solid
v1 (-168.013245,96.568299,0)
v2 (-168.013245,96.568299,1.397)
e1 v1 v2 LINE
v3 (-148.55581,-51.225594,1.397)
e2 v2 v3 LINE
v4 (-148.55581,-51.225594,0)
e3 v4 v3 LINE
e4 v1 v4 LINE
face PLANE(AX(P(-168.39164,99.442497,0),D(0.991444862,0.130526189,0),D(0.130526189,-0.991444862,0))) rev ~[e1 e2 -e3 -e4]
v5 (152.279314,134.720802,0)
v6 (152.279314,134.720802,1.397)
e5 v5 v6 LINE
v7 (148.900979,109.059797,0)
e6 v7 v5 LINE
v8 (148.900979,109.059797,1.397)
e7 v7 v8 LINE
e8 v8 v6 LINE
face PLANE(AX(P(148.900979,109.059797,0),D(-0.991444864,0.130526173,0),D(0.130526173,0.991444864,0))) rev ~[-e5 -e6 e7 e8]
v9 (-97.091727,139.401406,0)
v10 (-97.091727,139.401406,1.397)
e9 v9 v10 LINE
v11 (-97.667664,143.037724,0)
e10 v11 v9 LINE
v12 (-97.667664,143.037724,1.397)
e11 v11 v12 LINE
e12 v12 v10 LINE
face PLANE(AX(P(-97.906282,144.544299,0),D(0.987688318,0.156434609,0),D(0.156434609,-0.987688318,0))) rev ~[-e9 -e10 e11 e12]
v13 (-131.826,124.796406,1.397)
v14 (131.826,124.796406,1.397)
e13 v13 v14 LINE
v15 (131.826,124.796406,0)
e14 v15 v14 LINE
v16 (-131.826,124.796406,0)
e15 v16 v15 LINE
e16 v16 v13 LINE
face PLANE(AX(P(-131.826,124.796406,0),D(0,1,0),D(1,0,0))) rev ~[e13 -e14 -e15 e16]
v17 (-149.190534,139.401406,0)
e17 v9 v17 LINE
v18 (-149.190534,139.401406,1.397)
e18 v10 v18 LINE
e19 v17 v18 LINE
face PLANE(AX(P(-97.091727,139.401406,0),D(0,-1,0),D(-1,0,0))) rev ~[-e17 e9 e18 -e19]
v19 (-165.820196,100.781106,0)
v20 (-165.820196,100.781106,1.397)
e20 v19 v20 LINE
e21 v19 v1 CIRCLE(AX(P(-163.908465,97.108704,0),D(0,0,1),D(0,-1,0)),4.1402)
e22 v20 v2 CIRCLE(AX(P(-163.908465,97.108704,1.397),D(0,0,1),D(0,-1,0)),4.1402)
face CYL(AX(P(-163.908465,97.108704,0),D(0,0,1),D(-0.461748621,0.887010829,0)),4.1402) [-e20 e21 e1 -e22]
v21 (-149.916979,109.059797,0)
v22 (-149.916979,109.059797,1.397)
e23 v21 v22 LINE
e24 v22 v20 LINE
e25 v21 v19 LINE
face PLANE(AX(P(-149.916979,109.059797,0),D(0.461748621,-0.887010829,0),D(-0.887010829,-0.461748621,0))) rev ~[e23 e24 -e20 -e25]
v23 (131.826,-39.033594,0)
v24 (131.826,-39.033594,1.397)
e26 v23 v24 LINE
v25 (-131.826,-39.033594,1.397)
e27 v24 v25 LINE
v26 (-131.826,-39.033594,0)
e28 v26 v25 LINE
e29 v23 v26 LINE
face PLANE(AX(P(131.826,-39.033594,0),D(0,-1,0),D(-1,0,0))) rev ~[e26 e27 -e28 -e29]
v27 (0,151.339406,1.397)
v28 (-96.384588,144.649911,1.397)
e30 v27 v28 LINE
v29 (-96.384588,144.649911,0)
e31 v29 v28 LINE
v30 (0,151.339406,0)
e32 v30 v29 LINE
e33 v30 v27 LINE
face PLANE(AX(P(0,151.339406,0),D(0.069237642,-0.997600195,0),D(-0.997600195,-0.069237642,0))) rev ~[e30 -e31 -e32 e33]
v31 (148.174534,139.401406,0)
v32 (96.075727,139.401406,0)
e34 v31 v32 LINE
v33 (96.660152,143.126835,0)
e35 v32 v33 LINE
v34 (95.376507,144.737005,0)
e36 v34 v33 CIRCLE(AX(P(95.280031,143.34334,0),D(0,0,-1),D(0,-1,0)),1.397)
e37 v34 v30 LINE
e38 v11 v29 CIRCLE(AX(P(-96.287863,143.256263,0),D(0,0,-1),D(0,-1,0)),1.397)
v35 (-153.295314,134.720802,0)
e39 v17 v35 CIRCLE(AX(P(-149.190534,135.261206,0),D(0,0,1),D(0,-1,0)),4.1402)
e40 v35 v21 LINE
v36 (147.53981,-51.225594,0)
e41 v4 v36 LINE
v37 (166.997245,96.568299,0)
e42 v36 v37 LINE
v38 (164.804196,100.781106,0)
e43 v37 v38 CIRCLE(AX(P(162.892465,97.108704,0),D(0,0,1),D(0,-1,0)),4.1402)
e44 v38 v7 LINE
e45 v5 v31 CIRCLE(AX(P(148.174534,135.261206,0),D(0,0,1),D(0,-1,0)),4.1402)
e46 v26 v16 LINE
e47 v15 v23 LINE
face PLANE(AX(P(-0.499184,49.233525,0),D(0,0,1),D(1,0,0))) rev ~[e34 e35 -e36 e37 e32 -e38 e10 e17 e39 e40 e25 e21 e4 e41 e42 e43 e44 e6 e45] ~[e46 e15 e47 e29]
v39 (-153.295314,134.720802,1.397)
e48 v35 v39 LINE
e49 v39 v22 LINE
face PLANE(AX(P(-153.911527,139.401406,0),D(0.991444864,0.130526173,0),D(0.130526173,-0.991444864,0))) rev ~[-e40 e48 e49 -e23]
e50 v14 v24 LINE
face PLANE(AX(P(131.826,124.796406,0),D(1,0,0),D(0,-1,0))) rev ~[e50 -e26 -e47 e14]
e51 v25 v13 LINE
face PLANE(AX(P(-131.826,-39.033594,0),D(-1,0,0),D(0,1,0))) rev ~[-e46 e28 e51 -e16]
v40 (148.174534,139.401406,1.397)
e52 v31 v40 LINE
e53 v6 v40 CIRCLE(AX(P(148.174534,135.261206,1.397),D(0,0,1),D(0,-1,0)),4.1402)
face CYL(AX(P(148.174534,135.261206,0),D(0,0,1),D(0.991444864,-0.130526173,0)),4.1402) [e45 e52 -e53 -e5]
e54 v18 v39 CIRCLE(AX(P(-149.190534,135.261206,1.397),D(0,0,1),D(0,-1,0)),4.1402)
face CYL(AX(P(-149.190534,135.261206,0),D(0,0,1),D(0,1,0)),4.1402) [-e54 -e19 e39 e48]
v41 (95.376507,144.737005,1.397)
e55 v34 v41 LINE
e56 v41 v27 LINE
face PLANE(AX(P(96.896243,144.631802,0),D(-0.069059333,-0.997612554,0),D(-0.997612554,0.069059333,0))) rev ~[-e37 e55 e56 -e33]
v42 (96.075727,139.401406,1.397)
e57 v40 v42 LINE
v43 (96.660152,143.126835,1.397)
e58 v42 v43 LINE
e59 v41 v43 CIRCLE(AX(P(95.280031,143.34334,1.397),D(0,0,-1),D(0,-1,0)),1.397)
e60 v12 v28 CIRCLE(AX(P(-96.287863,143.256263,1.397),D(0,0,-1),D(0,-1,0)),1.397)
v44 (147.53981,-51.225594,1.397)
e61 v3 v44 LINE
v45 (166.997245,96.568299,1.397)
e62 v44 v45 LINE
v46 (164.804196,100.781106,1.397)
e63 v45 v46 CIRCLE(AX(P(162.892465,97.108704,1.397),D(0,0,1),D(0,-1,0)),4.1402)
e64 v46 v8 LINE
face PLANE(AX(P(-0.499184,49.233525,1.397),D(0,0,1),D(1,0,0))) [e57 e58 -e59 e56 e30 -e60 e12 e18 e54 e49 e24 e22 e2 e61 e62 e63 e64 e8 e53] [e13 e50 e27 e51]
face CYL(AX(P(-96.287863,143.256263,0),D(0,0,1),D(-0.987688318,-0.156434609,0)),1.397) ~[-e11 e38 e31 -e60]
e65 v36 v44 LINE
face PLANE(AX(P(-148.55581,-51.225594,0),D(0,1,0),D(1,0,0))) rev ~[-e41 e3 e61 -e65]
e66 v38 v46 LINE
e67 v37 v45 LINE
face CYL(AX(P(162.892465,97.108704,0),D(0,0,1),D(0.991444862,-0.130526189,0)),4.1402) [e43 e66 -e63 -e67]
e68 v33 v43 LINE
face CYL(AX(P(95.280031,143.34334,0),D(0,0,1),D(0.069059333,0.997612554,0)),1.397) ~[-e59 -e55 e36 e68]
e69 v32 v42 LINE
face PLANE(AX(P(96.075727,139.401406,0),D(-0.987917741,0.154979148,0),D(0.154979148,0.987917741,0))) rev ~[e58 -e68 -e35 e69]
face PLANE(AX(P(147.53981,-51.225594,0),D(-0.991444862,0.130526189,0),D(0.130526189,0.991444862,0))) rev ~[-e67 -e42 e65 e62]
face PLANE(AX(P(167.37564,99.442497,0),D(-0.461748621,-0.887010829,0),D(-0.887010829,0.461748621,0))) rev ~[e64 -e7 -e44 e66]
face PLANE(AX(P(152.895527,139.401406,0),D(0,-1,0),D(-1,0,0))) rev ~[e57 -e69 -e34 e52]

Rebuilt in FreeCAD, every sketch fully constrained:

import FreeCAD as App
import Part
import Sketcher

V = App.Vector
Q = App.Units.Quantity


def edges_at(feature, points):
    """Names of the edges that pass closest to the given points."""
    edges = feature.Shape.Edges
    near = lambda p: min(range(len(edges)), key=lambda i: edges[i].distToShape(Part.Vertex(*p))[0])
    return sorted({f"Edge{near(p) + 1}" for p in points})


def add_polygon(sketch, points):
    """Adds a closed chain of lines whose ends are joined by coincident constraints."""
    first, n = sketch.GeometryCount, len(points)
    for a, b in zip(points, points[1:] + points[:1]):
        sketch.addGeometry(Part.LineSegment(App.Vector(*a, 0), App.Vector(*b, 0)), False)
    for i in range(n):
        sketch.addConstraint(Sketcher.Constraint("Coincident", first + i, 2, first + (i + 1) % n, 1))

doc = App.newDocument("Part")
params = doc.addObject("Spreadsheet::Sheet", "Params")
for row, (alias, value) in enumerate([
    ("sketch1_width", "10.38 in"),
    ("sketch1_height", "6.45 in"),
    ("sketch1_length", "0.82 in"),
    ("sketch1_width2", "2.237 in"),
    ("sketch1_length2", "5.983 in"),
    ("pad1_length", "0.055 in"),
    ("fillet_radius", "0.163 in"),
    ("fillet2_radius", "0.055 in"),
], start=1):
    params.set(f"A{row}", alias)
    params.set(f"B{row}", "=" + value)
    params.setAlias(f"B{row}", alias)

body = doc.addObject("PartDesign::Body", "Body")

# Sketch on XY plane
sketch1 = body.newObject("Sketcher::SketchObject", "Sketch")
sketch1.AttachmentSupport = (doc.getObject("XY_Plane"), [""])
sketch1.MapMode = "FlatFace"
add_polygon(sketch1, [(-97.091727, 139.401406), (-153.911527, 139.401406), (-149.916979, 109.059797), (-168.39164, 99.442497), (-148.55581, -51.225594), (147.53981, -51.225594), (167.37564, 99.442497), (148.900979, 109.059797), (152.895527, 139.401406), (96.075727, 139.401406), (96.896243, 144.631802), (0, 151.339406), (-97.906282, 144.544299)])  # lines 0-12
add_polygon(sketch1, [(131.826, -39.033594), (-131.826, -39.033594), (-131.826, 124.796406), (131.826, 124.796406)])  # lines 13-16
sketch1.addConstraint([
    Sketcher.Constraint("Horizontal", 0),
    Sketcher.Constraint("Horizontal", 4),
    Sketcher.Constraint("Horizontal", 8),
    Sketcher.Constraint("Horizontal", 13),
    Sketcher.Constraint("Vertical", 14),
    Sketcher.Constraint("Horizontal", 15),
    Sketcher.Constraint("Vertical", 16),
    Sketcher.Constraint("PointOnObject", 10, 2, -2),
    Sketcher.Constraint("Parallel", 1, 3),
    Sketcher.Constraint("Parallel", 5, 7),
    Sketcher.Constraint("Horizontal", 2, 2, 5, 2),
    Sketcher.Constraint("Horizontal", 1, 2, 6, 2),
    Sketcher.Constraint("Horizontal", 0, 2, 7, 2),
    Sketcher.Constraint("Equal", 0, 8),
    Sketcher.Constraint("Equal", 3, 5),
    Sketcher.Constraint("Equal", 2, 6),
    Sketcher.Constraint("Angle", 12, Q("-80.999992 deg")),
    Sketcher.Constraint("DistanceX", 13, 2, 13, 1, Q("10.38 in")),
    Sketcher.Constraint("DistanceY", 14, 1, 14, 2, Q("6.45 in")),
    Sketcher.Constraint("Angle", 1, Q("-82.500001 deg")),
    Sketcher.Constraint("Angle", 2, Q("-152.499999 deg")),
    Sketcher.Constraint("Distance", 2, Q("0.82 in")),
    Sketcher.Constraint("DistanceX", 0, 2, 0, 1, Q("2.237 in")),
    Sketcher.Constraint("DistanceX", 13, 2, -1, 1, Q("5.19 in")),
    Sketcher.Constraint("DistanceY", 8, 2, 10, 2, Q("0.47 in")),
    Sketcher.Constraint("DistanceY", 3, 2, 13, 2, Q("0.48 in")),
    Sketcher.Constraint("Distance", 3, Q("5.983 in")),
    Sketcher.Constraint("Distance", 12, Q("0.205 in")),
    Sketcher.Constraint("DistanceY", 3, 2, 0, 2, Q("7.505 in")),
    Sketcher.Constraint("DistanceX", 4, 1, 4, 2, Q("296.09562 mm")),
    Sketcher.Constraint("DistanceY", -1, 1, 9, 2, Q("144.631802 mm")),
    Sketcher.Constraint("DistanceY", -1, 1, 11, 2, Q("144.544299 mm")),
    Sketcher.Constraint("Distance", 10, Q("97.128131 mm")),
    Sketcher.Constraint("DistanceX", 1, 2, -1, 1, Q("149.916979 mm")),
])
sketch1.setExpression("Constraints[34]", "Params.sketch1_width")
sketch1.setExpression("Constraints[35]", "Params.sketch1_height")
sketch1.setExpression("Constraints[38]", "Params.sketch1_length")
sketch1.setExpression("Constraints[39]", "Params.sketch1_width2")
sketch1.setExpression("Constraints[43]", "Params.sketch1_length2")
pad1 = body.newObject("PartDesign::Pad", "Pad")
pad1.Profile = sketch1
pad1.setExpression("Length", "Params.pad1_length")
doc.recompute()

fillet = body.newObject("PartDesign::Fillet", "Fillet")
fillet.Base = (pad1, edges_at(pad1, [
    (-153.912, 139.401, 0.699),
    (152.896, 139.401, 0.699),
    (-168.392, 99.442, 0.699),
    (167.376, 99.442, 0.699),
]))
fillet.setExpression("Radius", "Params.fillet_radius")
doc.recompute()

fillet2 = body.newObject("PartDesign::Fillet", "Fillet001")
fillet2.Base = (fillet, edges_at(fillet, [(96.896, 144.632, 0.699), (-97.906, 144.544, 0.699)]))
fillet2.setExpression("Radius", "Params.fillet2_radius")

doc.recompute()
